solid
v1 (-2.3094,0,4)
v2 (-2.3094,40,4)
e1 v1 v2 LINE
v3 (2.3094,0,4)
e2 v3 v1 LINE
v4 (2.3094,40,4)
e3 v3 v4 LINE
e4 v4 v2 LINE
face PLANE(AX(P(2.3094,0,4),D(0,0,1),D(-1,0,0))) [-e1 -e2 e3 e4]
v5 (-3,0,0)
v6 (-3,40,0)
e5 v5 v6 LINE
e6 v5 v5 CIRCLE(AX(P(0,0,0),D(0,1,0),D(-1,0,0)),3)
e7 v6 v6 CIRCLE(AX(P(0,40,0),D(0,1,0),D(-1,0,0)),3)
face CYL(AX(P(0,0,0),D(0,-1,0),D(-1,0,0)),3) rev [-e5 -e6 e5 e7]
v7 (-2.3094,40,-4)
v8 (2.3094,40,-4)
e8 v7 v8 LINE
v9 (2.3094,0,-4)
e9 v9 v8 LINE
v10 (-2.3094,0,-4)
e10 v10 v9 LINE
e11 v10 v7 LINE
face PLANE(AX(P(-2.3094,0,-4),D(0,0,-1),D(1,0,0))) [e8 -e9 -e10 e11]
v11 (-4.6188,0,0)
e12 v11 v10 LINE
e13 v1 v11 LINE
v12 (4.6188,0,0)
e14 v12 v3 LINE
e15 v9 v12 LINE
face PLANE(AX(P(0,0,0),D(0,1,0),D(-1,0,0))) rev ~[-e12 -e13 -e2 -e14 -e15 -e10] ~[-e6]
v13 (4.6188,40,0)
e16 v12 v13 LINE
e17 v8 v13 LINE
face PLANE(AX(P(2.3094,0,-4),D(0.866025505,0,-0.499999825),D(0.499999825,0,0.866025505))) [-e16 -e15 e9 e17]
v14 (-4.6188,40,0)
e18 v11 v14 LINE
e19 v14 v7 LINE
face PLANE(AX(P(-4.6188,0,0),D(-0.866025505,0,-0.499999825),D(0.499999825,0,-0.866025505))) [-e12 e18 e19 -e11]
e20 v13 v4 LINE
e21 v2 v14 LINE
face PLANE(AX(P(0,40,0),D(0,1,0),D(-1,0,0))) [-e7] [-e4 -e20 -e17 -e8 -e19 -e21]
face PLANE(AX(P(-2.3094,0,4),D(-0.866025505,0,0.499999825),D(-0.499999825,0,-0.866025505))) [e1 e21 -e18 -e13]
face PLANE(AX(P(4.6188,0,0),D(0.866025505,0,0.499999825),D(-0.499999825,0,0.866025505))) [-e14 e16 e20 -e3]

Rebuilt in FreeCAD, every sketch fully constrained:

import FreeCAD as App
import Part
import Sketcher
Q = App.Units.Quantity

doc = App.newDocument("Part")
body = doc.addObject("PartDesign::Body", "Body")

sketch1 = body.newObject("Sketcher::SketchObject", "Sketch")
sketch1.AttachmentSupport = (doc.getObject("XZ_Plane"), [""])
sketch1.MapMode = "FlatFace"
sketch1.addGeometry(Part.LineSegment(App.Vector(-2.3094, -4, 0), App.Vector(-4.6188, 0, 0)), False)
sketch1.addGeometry(Part.LineSegment(App.Vector(-4.6188, 0, 0), App.Vector(-2.3094, 4, 0)), False)
sketch1.addGeometry(Part.LineSegment(App.Vector(-2.3094, 4, 0), App.Vector(2.3094, 4, 0)), False)
sketch1.addGeometry(Part.LineSegment(App.Vector(2.3094, 4, 0), App.Vector(4.6188, 0, 0)), False)
sketch1.addGeometry(Part.LineSegment(App.Vector(4.6188, 0, 0), App.Vector(2.3094, -4, 0)), False)
sketch1.addGeometry(Part.LineSegment(App.Vector(2.3094, -4, 0), App.Vector(-2.3094, -4, 0)), False)
sketch1.addGeometry(Part.Circle(App.Vector(0, 0, 0), App.Vector(0, 0, 1), 3), False)
sketch1.addConstraint(Sketcher.Constraint("Coincident", 0, 2, 1, 1))
sketch1.addConstraint(Sketcher.Constraint("Coincident", 1, 2, 2, 1))
sketch1.addConstraint(Sketcher.Constraint("Coincident", 2, 2, 3, 1))
sketch1.addConstraint(Sketcher.Constraint("Coincident", 3, 2, 4, 1))
sketch1.addConstraint(Sketcher.Constraint("Coincident", 4, 2, 5, 1))
sketch1.addConstraint(Sketcher.Constraint("Coincident", 5, 2, 0, 1))
sketch1.addConstraint(Sketcher.Constraint("Horizontal", 2))
sketch1.addConstraint(Sketcher.Constraint("Horizontal", 5))
sketch1.addConstraint(Sketcher.Constraint("Coincident", 6, 3, -1, 1))
sketch1.addConstraint(Sketcher.Constraint("Symmetric", 0, 2, 3, 2, -1, 1))
sketch1.addConstraint(Sketcher.Constraint("Symmetric", 1, 2, 4, 2, -1, 1))
sketch1.addConstraint(Sketcher.Constraint("PointOnObject", 0, 2, -1))
sketch1.addConstraint(Sketcher.Constraint("Parallel", 0, 3))
sketch1.addConstraint(Sketcher.Constraint("Vertical", 2, 2, 4, 2))
sketch1.addConstraint(Sketcher.Constraint("Diameter", 6, Q("6 mm")))
sketch1.addConstraint(Sketcher.Constraint("DistanceY", 4, 2, 2, 2, Q("8 mm")))
sketch1.addConstraint(Sketcher.Constraint("Angle", 0, Q("120 deg")))
sketch1.addConstraint(Sketcher.Constraint("DistanceX", 2, 1, 2, 2, Q("4.6188 mm")))
pad1 = body.newObject("PartDesign::Pad", "Pad")
pad1.Profile = sketch1
pad1.Length = 40
pad1.Reversed = True

doc.recompute()
